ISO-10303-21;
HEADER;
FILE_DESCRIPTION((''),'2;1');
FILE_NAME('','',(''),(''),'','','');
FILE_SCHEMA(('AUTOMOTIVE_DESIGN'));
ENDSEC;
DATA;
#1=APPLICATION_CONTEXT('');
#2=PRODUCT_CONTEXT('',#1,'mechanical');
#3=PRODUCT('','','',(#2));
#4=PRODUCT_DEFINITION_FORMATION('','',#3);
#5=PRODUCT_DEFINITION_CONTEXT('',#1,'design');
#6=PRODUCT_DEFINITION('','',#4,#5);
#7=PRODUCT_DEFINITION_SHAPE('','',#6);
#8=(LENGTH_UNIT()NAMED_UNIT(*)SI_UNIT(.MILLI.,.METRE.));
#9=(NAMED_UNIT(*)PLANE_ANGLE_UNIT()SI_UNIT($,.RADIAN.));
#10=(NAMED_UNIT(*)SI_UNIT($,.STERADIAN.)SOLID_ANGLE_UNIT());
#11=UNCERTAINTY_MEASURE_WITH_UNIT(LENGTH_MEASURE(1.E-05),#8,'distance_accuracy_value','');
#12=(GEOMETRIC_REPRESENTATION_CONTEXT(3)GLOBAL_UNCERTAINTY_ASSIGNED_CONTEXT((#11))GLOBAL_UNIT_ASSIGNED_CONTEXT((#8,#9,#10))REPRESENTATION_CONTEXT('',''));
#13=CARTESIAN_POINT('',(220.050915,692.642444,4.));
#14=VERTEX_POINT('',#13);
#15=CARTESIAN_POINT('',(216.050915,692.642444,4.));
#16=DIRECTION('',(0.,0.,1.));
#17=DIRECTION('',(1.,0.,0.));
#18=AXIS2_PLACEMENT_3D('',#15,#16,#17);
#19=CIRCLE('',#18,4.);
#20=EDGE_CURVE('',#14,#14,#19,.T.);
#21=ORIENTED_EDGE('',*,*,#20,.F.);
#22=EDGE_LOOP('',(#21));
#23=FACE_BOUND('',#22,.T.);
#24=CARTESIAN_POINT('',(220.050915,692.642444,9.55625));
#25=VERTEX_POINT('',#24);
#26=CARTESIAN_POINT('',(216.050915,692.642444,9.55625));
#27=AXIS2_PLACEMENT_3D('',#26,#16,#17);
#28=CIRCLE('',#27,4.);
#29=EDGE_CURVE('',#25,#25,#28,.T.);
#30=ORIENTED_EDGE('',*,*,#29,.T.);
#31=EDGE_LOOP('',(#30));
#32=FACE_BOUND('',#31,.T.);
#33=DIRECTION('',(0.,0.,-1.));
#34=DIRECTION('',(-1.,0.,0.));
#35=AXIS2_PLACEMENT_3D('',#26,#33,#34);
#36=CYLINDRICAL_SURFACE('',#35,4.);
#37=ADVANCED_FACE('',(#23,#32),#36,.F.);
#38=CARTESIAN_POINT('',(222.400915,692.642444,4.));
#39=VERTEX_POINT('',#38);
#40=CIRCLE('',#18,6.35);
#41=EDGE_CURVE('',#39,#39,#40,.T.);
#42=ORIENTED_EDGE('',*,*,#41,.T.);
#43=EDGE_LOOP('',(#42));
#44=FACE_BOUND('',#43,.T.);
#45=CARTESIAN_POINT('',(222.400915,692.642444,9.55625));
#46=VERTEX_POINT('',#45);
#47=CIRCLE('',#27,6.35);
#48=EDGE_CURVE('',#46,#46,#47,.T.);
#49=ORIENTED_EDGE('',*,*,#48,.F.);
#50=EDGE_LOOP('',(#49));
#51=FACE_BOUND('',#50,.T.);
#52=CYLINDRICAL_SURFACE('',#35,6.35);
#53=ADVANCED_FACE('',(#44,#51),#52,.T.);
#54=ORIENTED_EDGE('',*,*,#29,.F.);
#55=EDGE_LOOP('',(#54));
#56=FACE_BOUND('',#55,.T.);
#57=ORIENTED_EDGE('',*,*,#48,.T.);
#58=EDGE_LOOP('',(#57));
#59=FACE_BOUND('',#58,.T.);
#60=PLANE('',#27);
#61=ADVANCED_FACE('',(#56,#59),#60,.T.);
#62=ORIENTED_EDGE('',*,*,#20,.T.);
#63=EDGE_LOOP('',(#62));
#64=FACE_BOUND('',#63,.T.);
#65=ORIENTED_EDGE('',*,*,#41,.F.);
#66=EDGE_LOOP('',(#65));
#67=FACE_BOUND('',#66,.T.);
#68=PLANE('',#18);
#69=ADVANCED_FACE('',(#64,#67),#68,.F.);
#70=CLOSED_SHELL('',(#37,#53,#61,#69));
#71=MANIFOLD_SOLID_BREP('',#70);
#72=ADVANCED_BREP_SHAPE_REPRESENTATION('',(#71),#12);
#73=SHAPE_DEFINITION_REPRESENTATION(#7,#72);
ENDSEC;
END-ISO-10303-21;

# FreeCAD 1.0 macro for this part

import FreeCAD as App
import Part
import Sketcher
from FreeCAD import Vector
Q = App.Units.Quantity

doc = App.newDocument("Part")
body = doc.addObject("PartDesign::Body", "Body")

# Sketch on XY plane
sketch1 = body.newObject("Sketcher::SketchObject", "Sketch")
sketch1.AttachmentSupport = (doc.getObject("XY_Plane"), [""])
sketch1.MapMode = "FlatFace"
sketch1.AttachmentOffset = App.Placement(Vector(0, 0, 4), App.Rotation())
sketch1.addGeometry(Part.Circle(Vector(216.1, 692.6, 0), Vector(0, 0, 1), 6.3), False)
sketch1.addGeometry(Part.Circle(Vector(216.1, 692.6, 0), Vector(0, 0, 1), 4), False)
sketch1.addConstraint(Sketcher.Constraint("Coincident", 1, 3, 0, 3))
sketch1.addConstraint(Sketcher.Constraint("Diameter", 0, Q("0.5 in")))
sketch1.addConstraint(Sketcher.Constraint("Diameter", 1, Q("8 mm")))
sketch1.addConstraint(Sketcher.Constraint("DistanceX", -1, 1, 0, 3, Q("216.050915 mm")))
sketch1.addConstraint(Sketcher.Constraint("DistanceY", -1, 1, 0, 3, Q("692.642444 mm")))
pad1 = body.newObject("PartDesign::Pad", "Pad")
pad1.Profile = sketch1
pad1.Length = Q("0.21875 in")

doc.recompute()
